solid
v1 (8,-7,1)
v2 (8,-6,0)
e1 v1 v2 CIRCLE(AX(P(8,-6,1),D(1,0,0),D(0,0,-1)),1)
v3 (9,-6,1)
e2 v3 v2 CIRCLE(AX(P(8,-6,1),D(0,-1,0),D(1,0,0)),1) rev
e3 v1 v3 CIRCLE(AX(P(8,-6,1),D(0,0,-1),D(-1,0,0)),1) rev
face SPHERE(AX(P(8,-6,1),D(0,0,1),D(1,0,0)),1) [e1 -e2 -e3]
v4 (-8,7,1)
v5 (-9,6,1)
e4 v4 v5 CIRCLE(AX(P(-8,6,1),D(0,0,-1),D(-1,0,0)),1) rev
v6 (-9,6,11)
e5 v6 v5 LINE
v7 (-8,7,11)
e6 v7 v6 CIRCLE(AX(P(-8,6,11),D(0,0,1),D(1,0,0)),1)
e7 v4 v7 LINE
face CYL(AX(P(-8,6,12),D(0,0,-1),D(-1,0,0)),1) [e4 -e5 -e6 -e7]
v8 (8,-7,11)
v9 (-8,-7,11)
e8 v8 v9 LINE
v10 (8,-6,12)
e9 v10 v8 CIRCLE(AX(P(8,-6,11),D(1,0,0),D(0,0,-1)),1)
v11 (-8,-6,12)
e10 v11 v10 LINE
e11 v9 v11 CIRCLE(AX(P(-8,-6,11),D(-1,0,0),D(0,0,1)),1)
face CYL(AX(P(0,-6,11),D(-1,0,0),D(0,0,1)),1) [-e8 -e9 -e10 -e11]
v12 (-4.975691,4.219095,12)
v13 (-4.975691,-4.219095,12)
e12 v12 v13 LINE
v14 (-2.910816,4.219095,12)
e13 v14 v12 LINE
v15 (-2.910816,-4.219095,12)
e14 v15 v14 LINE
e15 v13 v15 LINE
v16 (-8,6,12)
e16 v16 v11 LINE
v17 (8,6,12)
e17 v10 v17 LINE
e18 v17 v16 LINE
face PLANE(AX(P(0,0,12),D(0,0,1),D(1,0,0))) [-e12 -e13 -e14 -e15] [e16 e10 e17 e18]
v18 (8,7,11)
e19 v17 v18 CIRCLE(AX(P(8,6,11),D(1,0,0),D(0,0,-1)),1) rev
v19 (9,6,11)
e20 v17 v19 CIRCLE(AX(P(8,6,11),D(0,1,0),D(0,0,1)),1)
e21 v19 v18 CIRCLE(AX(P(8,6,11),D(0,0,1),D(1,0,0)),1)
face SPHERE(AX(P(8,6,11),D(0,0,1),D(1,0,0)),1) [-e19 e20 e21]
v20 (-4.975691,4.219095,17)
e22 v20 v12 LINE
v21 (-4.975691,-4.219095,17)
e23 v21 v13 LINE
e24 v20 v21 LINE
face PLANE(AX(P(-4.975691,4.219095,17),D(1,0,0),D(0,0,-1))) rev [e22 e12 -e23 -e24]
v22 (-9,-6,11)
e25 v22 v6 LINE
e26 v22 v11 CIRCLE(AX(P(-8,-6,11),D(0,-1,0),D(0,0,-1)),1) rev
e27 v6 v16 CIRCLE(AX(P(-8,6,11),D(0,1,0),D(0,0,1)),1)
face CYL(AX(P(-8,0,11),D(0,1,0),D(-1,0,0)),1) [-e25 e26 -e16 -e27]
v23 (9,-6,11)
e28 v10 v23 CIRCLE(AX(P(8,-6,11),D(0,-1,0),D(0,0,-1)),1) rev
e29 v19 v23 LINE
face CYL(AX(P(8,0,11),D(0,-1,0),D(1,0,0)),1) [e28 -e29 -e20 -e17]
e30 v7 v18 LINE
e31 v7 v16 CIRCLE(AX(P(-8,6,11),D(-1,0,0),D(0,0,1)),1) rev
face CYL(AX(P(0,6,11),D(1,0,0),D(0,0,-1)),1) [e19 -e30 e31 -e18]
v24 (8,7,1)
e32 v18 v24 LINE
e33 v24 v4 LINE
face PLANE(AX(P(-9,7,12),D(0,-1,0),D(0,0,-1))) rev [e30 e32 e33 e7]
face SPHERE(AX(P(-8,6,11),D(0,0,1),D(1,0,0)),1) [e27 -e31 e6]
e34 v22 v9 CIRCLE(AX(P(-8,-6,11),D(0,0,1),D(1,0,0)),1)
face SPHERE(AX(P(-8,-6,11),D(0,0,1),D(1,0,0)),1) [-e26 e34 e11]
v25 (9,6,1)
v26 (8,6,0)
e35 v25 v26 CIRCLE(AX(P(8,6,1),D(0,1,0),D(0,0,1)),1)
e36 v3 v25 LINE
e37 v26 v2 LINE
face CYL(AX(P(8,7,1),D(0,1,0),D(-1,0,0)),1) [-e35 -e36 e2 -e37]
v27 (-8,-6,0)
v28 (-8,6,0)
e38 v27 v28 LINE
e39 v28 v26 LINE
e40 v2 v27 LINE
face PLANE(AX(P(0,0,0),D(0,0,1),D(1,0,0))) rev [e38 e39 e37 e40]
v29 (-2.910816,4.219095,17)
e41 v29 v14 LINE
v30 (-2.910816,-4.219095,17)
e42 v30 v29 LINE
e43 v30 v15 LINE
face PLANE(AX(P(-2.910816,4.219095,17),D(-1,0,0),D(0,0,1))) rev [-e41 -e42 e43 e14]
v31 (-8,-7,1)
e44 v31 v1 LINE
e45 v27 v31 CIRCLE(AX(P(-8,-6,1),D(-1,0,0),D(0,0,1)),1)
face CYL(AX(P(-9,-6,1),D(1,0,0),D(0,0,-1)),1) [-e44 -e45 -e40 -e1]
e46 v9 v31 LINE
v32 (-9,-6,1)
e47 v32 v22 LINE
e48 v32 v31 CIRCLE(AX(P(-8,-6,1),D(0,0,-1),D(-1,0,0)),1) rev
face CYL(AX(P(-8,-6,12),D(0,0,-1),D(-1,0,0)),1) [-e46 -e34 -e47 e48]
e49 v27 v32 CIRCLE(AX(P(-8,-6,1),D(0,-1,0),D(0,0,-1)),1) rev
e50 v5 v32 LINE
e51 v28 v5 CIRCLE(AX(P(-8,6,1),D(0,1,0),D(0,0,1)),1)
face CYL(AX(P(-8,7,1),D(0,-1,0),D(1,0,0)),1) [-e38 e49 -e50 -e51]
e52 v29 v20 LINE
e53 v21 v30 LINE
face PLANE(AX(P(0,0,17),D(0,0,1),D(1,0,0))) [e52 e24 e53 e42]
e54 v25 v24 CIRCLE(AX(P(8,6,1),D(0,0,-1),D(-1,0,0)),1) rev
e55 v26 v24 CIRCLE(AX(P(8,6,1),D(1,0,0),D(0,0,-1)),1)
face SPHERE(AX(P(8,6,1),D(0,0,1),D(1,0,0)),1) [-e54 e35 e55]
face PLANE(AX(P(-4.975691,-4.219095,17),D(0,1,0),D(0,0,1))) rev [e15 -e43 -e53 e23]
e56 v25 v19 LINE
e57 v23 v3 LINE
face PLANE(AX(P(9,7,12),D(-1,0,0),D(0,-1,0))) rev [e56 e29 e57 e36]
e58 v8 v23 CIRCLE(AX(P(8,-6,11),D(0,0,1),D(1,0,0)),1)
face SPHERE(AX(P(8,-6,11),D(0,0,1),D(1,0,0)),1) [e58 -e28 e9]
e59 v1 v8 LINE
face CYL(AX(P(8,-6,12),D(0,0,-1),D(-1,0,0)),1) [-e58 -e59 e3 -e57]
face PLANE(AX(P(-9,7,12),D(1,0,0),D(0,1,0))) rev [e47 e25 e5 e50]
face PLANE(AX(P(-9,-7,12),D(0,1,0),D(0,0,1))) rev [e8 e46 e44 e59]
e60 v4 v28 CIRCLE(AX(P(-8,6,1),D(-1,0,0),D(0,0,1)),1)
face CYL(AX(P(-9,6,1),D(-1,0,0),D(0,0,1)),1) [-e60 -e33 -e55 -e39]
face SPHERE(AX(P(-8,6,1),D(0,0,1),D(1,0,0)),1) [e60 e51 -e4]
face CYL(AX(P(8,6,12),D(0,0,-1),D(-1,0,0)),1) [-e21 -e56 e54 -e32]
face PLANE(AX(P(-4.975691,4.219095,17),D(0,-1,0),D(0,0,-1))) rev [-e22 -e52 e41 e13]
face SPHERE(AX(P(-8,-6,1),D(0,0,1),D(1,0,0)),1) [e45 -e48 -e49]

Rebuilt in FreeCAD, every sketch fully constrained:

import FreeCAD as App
import Part
import Sketcher

V = App.Vector


def edges_at(feature, points):
    """Names of the edges that pass closest to the given points."""
    edges = feature.Shape.Edges
    near = lambda p: min(range(len(edges)), key=lambda i: edges[i].distToShape(Part.Vertex(*p))[0])
    return sorted({f"Edge{near(p) + 1}" for p in points})

doc = App.newDocument("Part")
body = doc.addObject("PartDesign::Body", "Body")

# Sketch on XY plane
sketch1 = body.newObject("Sketcher::SketchObject", "Sketch")
sketch1.AttachmentSupport = (doc.getObject("XY_Plane"), [""])
sketch1.MapMode = "FlatFace"
sketch1.addGeometry([
    Part.LineSegment(V(-9, 7, 0), V(-9, -7, 0)),
    Part.LineSegment(V(-9, -7, 0), V(9, -7, 0)),
    Part.LineSegment(V(9, -7, 0), V(9, 7, 0)),
    Part.LineSegment(V(9, 7, 0), V(-9, 7, 0)),
], False)
sketch1.addConstraint([
    Sketcher.Constraint("Coincident", 0, 2, 1, 1),
    Sketcher.Constraint("Coincident", 1, 2, 2, 1),
    Sketcher.Constraint("Coincident", 2, 2, 3, 1),
    Sketcher.Constraint("Coincident", 3, 2, 0, 1),
    Sketcher.Constraint("Vertical", 0),
    Sketcher.Constraint("Horizontal", 1),
    Sketcher.Constraint("Vertical", 2),
    Sketcher.Constraint("Horizontal", 3),
    Sketcher.Constraint("Symmetric", 0, 2, 2, 2, -1, 1),
    Sketcher.Constraint("DistanceX", 1, 1, 1, 2, 18.0),
    Sketcher.Constraint("DistanceY", 0, 2, 0, 1, 14.0),
])
pad1 = body.newObject("PartDesign::Pad", "Pad")
pad1.Profile = sketch1
pad1.Length = 12

# Sketch on XY plane
sketch2 = body.newObject("Sketcher::SketchObject", "Sketch001")
sketch2.AttachmentSupport = (doc.getObject("XY_Plane"), [""])
sketch2.MapMode = "FlatFace"
sketch2.AttachmentOffset = App.Placement(V(0, 0, 12), App.Rotation())
sketch2.addGeometry([
    Part.LineSegment(V(-4.975691, 4.219095, 0), V(-4.975691, -4.219095, 0)),
    Part.LineSegment(V(-4.975691, -4.219095, 0), V(-2.910816, -4.219095, 0)),
    Part.LineSegment(V(-2.910816, -4.219095, 0), V(-2.910816, 4.219095, 0)),
    Part.LineSegment(V(-2.910816, 4.219095, 0), V(-4.975691, 4.219095, 0)),
], False)
sketch2.addConstraint([
    Sketcher.Constraint("Coincident", 0, 2, 1, 1),
    Sketcher.Constraint("Coincident", 1, 2, 2, 1),
    Sketcher.Constraint("Coincident", 2, 2, 3, 1),
    Sketcher.Constraint("Coincident", 3, 2, 0, 1),
    Sketcher.Constraint("Vertical", 0),
    Sketcher.Constraint("Horizontal", 1),
    Sketcher.Constraint("Vertical", 2),
    Sketcher.Constraint("Horizontal", 3),
    Sketcher.Constraint("DistanceY", 0, 2, 0, 1, 8.43819),
    Sketcher.Constraint("DistanceX", 1, 1, 1, 2, 2.064875),
    Sketcher.Constraint("DistanceX", 0, 2, -1, 1, 4.975691),
    Sketcher.Constraint("DistanceY", 0, 2, -1, 1, 4.219095),
])
pad2 = body.newObject("PartDesign::Pad", "Pad001")
pad2.Profile = sketch2
pad2.Length = 5
doc.recompute()

fillet = body.newObject("PartDesign::Fillet", "Fillet")
fillet.Base = (pad2, edges_at(pad2, [
    (-9, 0, 12),
    (0, -7, 12),
    (9, 0, 12),
    (0, -7, 0),
    (-9, 0, 0),
    (0, 7, 0),
    (9, 0, 0),
    (0, 7, 12),
    (9, -7, 6),
    (-9, -7, 6),
    (-9, 7, 6),
    (9, 7, 6),
]))
fillet.Radius = 1

doc.recompute()
